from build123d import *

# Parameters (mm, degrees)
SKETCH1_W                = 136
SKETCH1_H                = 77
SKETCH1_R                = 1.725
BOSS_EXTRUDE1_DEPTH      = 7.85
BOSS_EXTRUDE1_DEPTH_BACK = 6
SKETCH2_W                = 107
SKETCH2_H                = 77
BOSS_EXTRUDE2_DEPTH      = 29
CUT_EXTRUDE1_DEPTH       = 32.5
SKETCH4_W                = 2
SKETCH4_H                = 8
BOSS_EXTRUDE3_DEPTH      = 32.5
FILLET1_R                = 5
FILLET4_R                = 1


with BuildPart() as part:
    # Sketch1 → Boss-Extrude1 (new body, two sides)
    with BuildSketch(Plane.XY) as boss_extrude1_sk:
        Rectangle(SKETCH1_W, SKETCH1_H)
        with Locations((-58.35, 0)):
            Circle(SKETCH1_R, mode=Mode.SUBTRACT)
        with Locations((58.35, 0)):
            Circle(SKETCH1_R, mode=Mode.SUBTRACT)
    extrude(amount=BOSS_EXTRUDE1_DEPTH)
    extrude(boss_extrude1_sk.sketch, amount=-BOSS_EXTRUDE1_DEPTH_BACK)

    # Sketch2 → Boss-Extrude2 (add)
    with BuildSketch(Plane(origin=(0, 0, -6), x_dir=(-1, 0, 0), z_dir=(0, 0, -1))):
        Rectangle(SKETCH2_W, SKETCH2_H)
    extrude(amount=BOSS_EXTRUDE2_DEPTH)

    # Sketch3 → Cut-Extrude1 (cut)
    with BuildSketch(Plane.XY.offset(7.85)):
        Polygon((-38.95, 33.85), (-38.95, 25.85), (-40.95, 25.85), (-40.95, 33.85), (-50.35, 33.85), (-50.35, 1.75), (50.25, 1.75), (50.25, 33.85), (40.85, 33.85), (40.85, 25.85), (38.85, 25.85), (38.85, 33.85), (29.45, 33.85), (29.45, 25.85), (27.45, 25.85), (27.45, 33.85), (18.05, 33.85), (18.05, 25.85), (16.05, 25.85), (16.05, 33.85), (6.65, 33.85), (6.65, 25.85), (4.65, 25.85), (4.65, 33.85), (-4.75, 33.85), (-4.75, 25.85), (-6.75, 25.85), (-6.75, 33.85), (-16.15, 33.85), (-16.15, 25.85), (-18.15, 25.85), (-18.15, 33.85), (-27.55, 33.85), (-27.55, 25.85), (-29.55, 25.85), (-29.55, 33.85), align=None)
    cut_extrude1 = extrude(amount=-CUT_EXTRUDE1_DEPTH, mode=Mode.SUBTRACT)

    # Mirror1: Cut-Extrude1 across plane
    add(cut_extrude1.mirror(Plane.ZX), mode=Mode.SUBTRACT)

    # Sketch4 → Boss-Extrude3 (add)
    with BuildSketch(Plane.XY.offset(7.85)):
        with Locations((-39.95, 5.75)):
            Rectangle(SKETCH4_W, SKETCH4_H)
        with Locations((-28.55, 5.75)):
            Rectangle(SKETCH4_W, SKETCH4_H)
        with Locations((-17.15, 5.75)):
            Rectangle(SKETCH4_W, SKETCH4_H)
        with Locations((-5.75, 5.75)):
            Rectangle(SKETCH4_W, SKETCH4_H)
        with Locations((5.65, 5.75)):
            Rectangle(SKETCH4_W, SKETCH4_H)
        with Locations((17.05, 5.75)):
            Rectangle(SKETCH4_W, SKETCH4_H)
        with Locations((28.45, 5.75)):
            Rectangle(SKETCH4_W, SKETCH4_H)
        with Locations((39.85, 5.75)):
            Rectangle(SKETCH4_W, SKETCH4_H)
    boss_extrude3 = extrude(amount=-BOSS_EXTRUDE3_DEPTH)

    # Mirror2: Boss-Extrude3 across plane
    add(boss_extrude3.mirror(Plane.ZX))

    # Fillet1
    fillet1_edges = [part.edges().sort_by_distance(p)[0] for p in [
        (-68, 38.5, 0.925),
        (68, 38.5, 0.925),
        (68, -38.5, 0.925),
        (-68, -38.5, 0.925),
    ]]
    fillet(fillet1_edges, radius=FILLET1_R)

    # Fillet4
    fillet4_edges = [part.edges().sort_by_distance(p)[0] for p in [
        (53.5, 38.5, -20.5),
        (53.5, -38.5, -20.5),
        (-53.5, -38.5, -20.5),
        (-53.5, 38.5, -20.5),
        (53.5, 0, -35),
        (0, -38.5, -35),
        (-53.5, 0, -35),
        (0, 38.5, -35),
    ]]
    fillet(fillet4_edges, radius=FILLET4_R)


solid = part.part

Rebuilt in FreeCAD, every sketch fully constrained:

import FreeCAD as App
import Part
import Sketcher


def edges_at(feature, points):
    """Names of the edges that pass closest to the given points."""
    edges = feature.Shape.Edges
    near = lambda p: min(range(len(edges)), key=lambda i: edges[i].distToShape(Part.Vertex(*p))[0])
    return sorted({f"Edge{near(p) + 1}" for p in points})

doc = App.newDocument("Part")
body = doc.addObject("PartDesign::Body", "Body")

sketch1 = body.newObject("Sketcher::SketchObject", "Sketch")
sketch1.AttachmentSupport = (doc.getObject("XY_Plane"), [""])
sketch1.MapMode = "FlatFace"
sketch1.addGeometry(Part.LineSegment(App.Vector(-68, 38.5, 0), App.Vector(-68, -38.5, 0)), False)
sketch1.addGeometry(Part.LineSegment(App.Vector(-68, -38.5, 0), App.Vector(68, -38.5, 0)), False)
sketch1.addGeometry(Part.LineSegment(App.Vector(68, -38.5, 0), App.Vector(68, 38.5, 0)), False)
sketch1.addGeometry(Part.LineSegment(App.Vector(68, 38.5, 0), App.Vector(-68, 38.5, 0)), False)
sketch1.addGeometry(Part.Circle(App.Vector(-58.4, 0, 0), App.Vector(0, 0, 1), 1.7), False)
sketch1.addGeometry(Part.Circle(App.Vector(58.4, 0, 0), App.Vector(0, 0, 1), 1.7), False)
sketch1.addConstraint(Sketcher.Constraint("Coincident", 0, 2, 1, 1))
sketch1.addConstraint(Sketcher.Constraint("Coincident", 1, 2, 2, 1))
sketch1.addConstraint(Sketcher.Constraint("Coincident", 2, 2, 3, 1))
sketch1.addConstraint(Sketcher.Constraint("Coincident", 3, 2, 0, 1))
sketch1.addConstraint(Sketcher.Constraint("Vertical", 0))
sketch1.addConstraint(Sketcher.Constraint("Horizontal", 1))
sketch1.addConstraint(Sketcher.Constraint("Vertical", 2))
sketch1.addConstraint(Sketcher.Constraint("Horizontal", 3))
sketch1.addConstraint(Sketcher.Constraint("Equal", 4, 5))
sketch1.addConstraint(Sketcher.Constraint("Symmetric", 4, 3, 5, 3, -1, 1))
sketch1.addConstraint(Sketcher.Constraint("Symmetric", 0, 2, 2, 2, -1, 1))
sketch1.addConstraint(Sketcher.Constraint("PointOnObject", 4, 3, -1))
sketch1.addConstraint(Sketcher.Constraint("Diameter", 4, 3.45))
sketch1.addConstraint(Sketcher.Constraint("DistanceX", 1, 1, 1, 2, 136.0))
sketch1.addConstraint(Sketcher.Constraint("DistanceY", 0, 2, 0, 1, 77.0))
sketch1.addConstraint(Sketcher.Constraint("DistanceX", 4, 3, 5, 3, 116.7))
pad1 = body.newObject("PartDesign::Pad", "Pad")
pad1.Profile = sketch1
pad1.Type = "TwoLengths"
pad1.Length = 7.85
pad1.Length2 = 6

sketch2 = body.newObject("Sketcher::SketchObject", "Sketch001")
sketch2.AttachmentSupport = (doc.getObject("XY_Plane"), [""])
sketch2.MapMode = "FlatFace"
sketch2.AttachmentOffset = App.Placement(App.Vector(0, 0, -6), App.Rotation())
sketch2.addGeometry(Part.LineSegment(App.Vector(54, 38, 0), App.Vector(54, -38, 0)), False)
sketch2.addGeometry(Part.LineSegment(App.Vector(54, -38, 0), App.Vector(-54, -38, 0)), False)
sketch2.addGeometry(Part.LineSegment(App.Vector(-54, -38, 0), App.Vector(-54, 38, 0)), False)
sketch2.addGeometry(Part.LineSegment(App.Vector(-54, 38, 0), App.Vector(54, 38, 0)), False)
sketch2.addConstraint(Sketcher.Constraint("Coincident", 0, 2, 1, 1))
sketch2.addConstraint(Sketcher.Constraint("Coincident", 1, 2, 2, 1))
sketch2.addConstraint(Sketcher.Constraint("Coincident", 2, 2, 3, 1))
sketch2.addConstraint(Sketcher.Constraint("Coincident", 3, 2, 0, 1))
sketch2.addConstraint(Sketcher.Constraint("Vertical", 0))
sketch2.addConstraint(Sketcher.Constraint("Horizontal", 1))
sketch2.addConstraint(Sketcher.Constraint("Vertical", 2))
sketch2.addConstraint(Sketcher.Constraint("Horizontal", 3))
sketch2.addConstraint(Sketcher.Constraint("Symmetric", 0, 2, 2, 2, -1, 1))
sketch2.addConstraint(Sketcher.Constraint("DistanceX", 1, 2, 1, 1, 107.0))
sketch2.addConstraint(Sketcher.Constraint("DistanceY", 0, 2, 0, 1, 77.0))
pad2 = body.newObject("PartDesign::Pad", "Pad001")
pad2.Profile = sketch2
pad2.Length = 29
pad2.Reversed = True

sketch3 = body.newObject("Sketcher::SketchObject", "Sketch002")
sketch3.AttachmentSupport = (doc.getObject("XY_Plane"), [""])
sketch3.MapMode = "FlatFace"
sketch3.AttachmentOffset = App.Placement(App.Vector(0, 0, 7.85), App.Rotation())
sketch3.addGeometry(Part.LineSegment(App.Vector(-39, 33.9, 0), App.Vector(-39, 25.9, 0)), False)
sketch3.addGeometry(Part.LineSegment(App.Vector(-39, 25.9, 0), App.Vector(-41, 25.9, 0)), False)
sketch3.addGeometry(Part.LineSegment(App.Vector(-41, 25.9, 0), App.Vector(-41, 33.9, 0)), False)
sketch3.addGeometry(Part.LineSegment(App.Vector(-41, 33.9, 0), App.Vector(-50.4, 33.9, 0)), False)
sketch3.addGeometry(Part.LineSegment(App.Vector(-50.4, 33.9, 0), App.Vector(-50.4, 1.8, 0)), False)
sketch3.addGeometry(Part.LineSegment(App.Vector(-50.4, 1.8, 0), App.Vector(50.2, 1.8, 0)), False)
sketch3.addGeometry(Part.LineSegment(App.Vector(50.2, 1.8, 0), App.Vector(50.2, 33.9, 0)), False)
sketch3.addGeometry(Part.LineSegment(App.Vector(50.2, 33.9, 0), App.Vector(40.9, 33.9, 0)), False)
sketch3.addGeometry(Part.LineSegment(App.Vector(40.9, 33.9, 0), App.Vector(40.9, 25.9, 0)), False)
sketch3.addGeometry(Part.LineSegment(App.Vector(40.9, 25.9, 0), App.Vector(38.9, 25.9, 0)), False)
sketch3.addGeometry(Part.LineSegment(App.Vector(38.9, 25.9, 0), App.Vector(38.9, 33.9, 0)), False)
sketch3.addGeometry(Part.LineSegment(App.Vector(38.9, 33.9, 0), App.Vector(29.4, 33.9, 0)), False)
sketch3.addGeometry(Part.LineSegment(App.Vector(29.4, 33.9, 0), App.Vector(29.4, 25.9, 0)), False)
sketch3.addGeometry(Part.LineSegment(App.Vector(29.4, 25.9, 0), App.Vector(27.4, 25.9, 0)), False)
sketch3.addGeometry(Part.LineSegment(App.Vector(27.4, 25.9, 0), App.Vector(27.4, 33.9, 0)), False)
sketch3.addGeometry(Part.LineSegment(App.Vector(27.4, 33.9, 0), App.Vector(18.1, 33.9, 0)), False)
sketch3.addGeometry(Part.LineSegment(App.Vector(18.1, 33.9, 0), App.Vector(18.1, 25.9, 0)), False)
sketch3.addGeometry(Part.LineSegment(App.Vector(18.1, 25.9, 0), App.Vector(16.1, 25.9, 0)), False)
sketch3.addGeometry(Part.LineSegment(App.Vector(16.1, 25.9, 0), App.Vector(16.1, 33.9, 0)), False)
sketch3.addGeometry(Part.LineSegment(App.Vector(16.1, 33.9, 0), App.Vector(6.7, 33.9, 0)), False)
sketch3.addGeometry(Part.LineSegment(App.Vector(6.7, 33.9, 0), App.Vector(6.7, 25.9, 0)), False)
sketch3.addGeometry(Part.LineSegment(App.Vector(6.7, 25.9, 0), App.Vector(4.7, 25.9, 0)), False)
sketch3.addGeometry(Part.LineSegment(App.Vector(4.7, 25.9, 0), App.Vector(4.7, 33.9, 0)), False)
sketch3.addGeometry(Part.LineSegment(App.Vector(4.7, 33.9, 0), App.Vector(-4.8, 33.9, 0)), False)
sketch3.addGeometry(Part.LineSegment(App.Vector(-4.8, 33.9, 0), App.Vector(-4.8, 25.9, 0)), False)
sketch3.addGeometry(Part.LineSegment(App.Vector(-4.8, 25.9, 0), App.Vector(-6.8, 25.9, 0)), False)
sketch3.addGeometry(Part.LineSegment(App.Vector(-6.8, 25.9, 0), App.Vector(-6.8, 33.9, 0)), False)
sketch3.addGeometry(Part.LineSegment(App.Vector(-6.8, 33.9, 0), App.Vector(-16.1, 33.9, 0)), False)
sketch3.addGeometry(Part.LineSegment(App.Vector(-16.1, 33.9, 0), App.Vector(-16.1, 25.9, 0)), False)
sketch3.addGeometry(Part.LineSegment(App.Vector(-16.1, 25.9, 0), App.Vector(-18.1, 25.9, 0)), False)
sketch3.addGeometry(Part.LineSegment(App.Vector(-18.1, 25.9, 0), App.Vector(-18.1, 33.9, 0)), False)
sketch3.addGeometry(Part.LineSegment(App.Vector(-18.1, 33.9, 0), App.Vector(-27.6, 33.9, 0)), False)
sketch3.addGeometry(Part.LineSegment(App.Vector(-27.6, 33.9, 0), App.Vector(-27.6, 25.9, 0)), False)
sketch3.addGeometry(Part.LineSegment(App.Vector(-27.6, 25.9, 0), App.Vector(-29.6, 25.9, 0)), False)
sketch3.addGeometry(Part.LineSegment(App.Vector(-29.6, 25.9, 0), App.Vector(-29.6, 33.9, 0)), False)
sketch3.addGeometry(Part.LineSegment(App.Vector(-29.6, 33.9, 0), App.Vector(-39, 33.9, 0)), False)
sketch3.addConstraint(Sketcher.Constraint("Coincident", 0, 2, 1, 1))
sketch3.addConstraint(Sketcher.Constraint("Coincident", 1, 2, 2, 1))
sketch3.addConstraint(Sketcher.Constraint("Coincident", 2, 2, 3, 1))
sketch3.addConstraint(Sketcher.Constraint("Coincident", 3, 2, 4, 1))
sketch3.addConstraint(Sketcher.Constraint("Coincident", 4, 2, 5, 1))
sketch3.addConstraint(Sketcher.Constraint("Coincident", 5, 2, 6, 1))
sketch3.addConstraint(Sketcher.Constraint("Coincident", 6, 2, 7, 1))
sketch3.addConstraint(Sketcher.Constraint("Coincident", 7, 2, 8, 1))
sketch3.addConstraint(Sketcher.Constraint("Coincident", 8, 2, 9, 1))
sketch3.addConstraint(Sketcher.Constraint("Coincident", 9, 2, 10, 1))
sketch3.addConstraint(Sketcher.Constraint("Coincident", 10, 2, 11, 1))
sketch3.addConstraint(Sketcher.Constraint("Coincident", 11, 2, 12, 1))
sketch3.addConstraint(Sketcher.Constraint("Coincident", 12, 2, 13, 1))
sketch3.addConstraint(Sketcher.Constraint("Coincident", 13, 2, 14, 1))
sketch3.addConstraint(Sketcher.Constraint("Coincident", 14, 2, 15, 1))
sketch3.addConstraint(Sketcher.Constraint("Coincident", 15, 2, 16, 1))
sketch3.addConstraint(Sketcher.Constraint("Coincident", 16, 2, 17, 1))
sketch3.addConstraint(Sketcher.Constraint("Coincident", 17, 2, 18, 1))
sketch3.addConstraint(Sketcher.Constraint("Coincident", 18, 2, 19, 1))
sketch3.addConstraint(Sketcher.Constraint("Coincident", 19, 2, 20, 1))
sketch3.addConstraint(Sketcher.Constraint("Coincident", 20, 2, 21, 1))
sketch3.addConstraint(Sketcher.Constraint("Coincident", 21, 2, 22, 1))
sketch3.addConstraint(Sketcher.Constraint("Coincident", 22, 2, 23, 1))
sketch3.addConstraint(Sketcher.Constraint("Coincident", 23, 2, 24, 1))
sketch3.addConstraint(Sketcher.Constraint("Coincident", 24, 2, 25, 1))
sketch3.addConstraint(Sketcher.Constraint("Coincident", 25, 2, 26, 1))
sketch3.addConstraint(Sketcher.Constraint("Coincident", 26, 2, 27, 1))
sketch3.addConstraint(Sketcher.Constraint("Coincident", 27, 2, 28, 1))
sketch3.addConstraint(Sketcher.Constraint("Coincident", 28, 2, 29, 1))
sketch3.addConstraint(Sketcher.Constraint("Coincident", 29, 2, 30, 1))
sketch3.addConstraint(Sketcher.Constraint("Coincident", 30, 2, 31, 1))
sketch3.addConstraint(Sketcher.Constraint("Coincident", 31, 2, 32, 1))
sketch3.addConstraint(Sketcher.Constraint("Coincident", 32, 2, 33, 1))
sketch3.addConstraint(Sketcher.Constraint("Coincident", 33, 2, 34, 1))
sketch3.addConstraint(Sketcher.Constraint("Coincident", 34, 2, 35, 1))
sketch3.addConstraint(Sketcher.Constraint("Coincident", 35, 2, 0, 1))
sketch3.addConstraint(Sketcher.Constraint("Vertical", 0))
sketch3.addConstraint(Sketcher.Constraint("Horizontal", 1))
sketch3.addConstraint(Sketcher.Constraint("Vertical", 2))
sketch3.addConstraint(Sketcher.Constraint("Horizontal", 3))
sketch3.addConstraint(Sketcher.Constraint("Vertical", 4))
sketch3.addConstraint(Sketcher.Constraint("Horizontal", 5))
sketch3.addConstraint(Sketcher.Constraint("Vertical", 6))
sketch3.addConstraint(Sketcher.Constraint("Horizontal", 7))
sketch3.addConstraint(Sketcher.Constraint("Vertical", 8))
sketch3.addConstraint(Sketcher.Constraint("Horizontal", 9))
sketch3.addConstraint(Sketcher.Constraint("Vertical", 10))
sketch3.addConstraint(Sketcher.Constraint("Horizontal", 11))
sketch3.addConstraint(Sketcher.Constraint("Vertical", 12))
sketch3.addConstraint(Sketcher.Constraint("Horizontal", 13))
sketch3.addConstraint(Sketcher.Constraint("Vertical", 14))
sketch3.addConstraint(Sketcher.Constraint("Horizontal", 15))
sketch3.addConstraint(Sketcher.Constraint("Vertical", 16))
sketch3.addConstraint(Sketcher.Constraint("Horizontal", 17))
sketch3.addConstraint(Sketcher.Constraint("Vertical", 18))
sketch3.addConstraint(Sketcher.Constraint("Horizontal", 19))
sketch3.addConstraint(Sketcher.Constraint("Vertical", 20))
sketch3.addConstraint(Sketcher.Constraint("Horizontal", 21))
sketch3.addConstraint(Sketcher.Constraint("Vertical", 22))
sketch3.addConstraint(Sketcher.Constraint("Horizontal", 23))
sketch3.addConstraint(Sketcher.Constraint("Vertical", 24))
sketch3.addConstraint(Sketcher.Constraint("Horizontal", 25))
sketch3.addConstraint(Sketcher.Constraint("Vertical", 26))
sketch3.addConstraint(Sketcher.Constraint("Horizontal", 27))
sketch3.addConstraint(Sketcher.Constraint("Vertical", 28))
sketch3.addConstraint(Sketcher.Constraint("Horizontal", 29))
sketch3.addConstraint(Sketcher.Constraint("Vertical", 30))
sketch3.addConstraint(Sketcher.Constraint("Horizontal", 31))
sketch3.addConstraint(Sketcher.Constraint("Vertical", 32))
sketch3.addConstraint(Sketcher.Constraint("Horizontal", 33))
sketch3.addConstraint(Sketcher.Constraint("Vertical", 34))
sketch3.addConstraint(Sketcher.Constraint("Horizontal", 35))
sketch3.addConstraint(Sketcher.Constraint("Horizontal", 3, 2, 6, 2))
sketch3.addConstraint(Sketcher.Constraint("Horizontal", 1, 2, 8, 2))
sketch3.addConstraint(Sketcher.Constraint("Horizontal", 7, 2, 10, 2))
sketch3.addConstraint(Sketcher.Constraint("Horizontal", 9, 2, 12, 2))
sketch3.addConstraint(Sketcher.Constraint("Horizontal", 11, 2, 14, 2))
sketch3.addConstraint(Sketcher.Constraint("Horizontal", 13, 2, 16, 2))
sketch3.addConstraint(Sketcher.Constraint("Horizontal", 15, 2, 18, 2))
sketch3.addConstraint(Sketcher.Constraint("Horizontal", 17, 2, 20, 2))
sketch3.addConstraint(Sketcher.Constraint("Horizontal", 19, 2, 22, 2))
sketch3.addConstraint(Sketcher.Constraint("Horizontal", 21, 2, 24, 2))
sketch3.addConstraint(Sketcher.Constraint("Horizontal", 23, 2, 26, 2))
sketch3.addConstraint(Sketcher.Constraint("Horizontal", 25, 2, 28, 2))
sketch3.addConstraint(Sketcher.Constraint("Horizontal", 27, 2, 30, 2))
sketch3.addConstraint(Sketcher.Constraint("Horizontal", 29, 2, 32, 2))
sketch3.addConstraint(Sketcher.Constraint("Horizontal", 31, 2, 34, 2))
sketch3.addConstraint(Sketcher.Constraint("Equal", 3, 7))
sketch3.addConstraint(Sketcher.Constraint("Equal", 1, 9))
sketch3.addConstraint(Sketcher.Constraint("Equal", 7, 11))
sketch3.addConstraint(Sketcher.Constraint("Equal", 9, 13))
sketch3.addConstraint(Sketcher.Constraint("Equal", 11, 15))
sketch3.addConstraint(Sketcher.Constraint("Equal", 13, 17))
sketch3.addConstraint(Sketcher.Constraint("Equal", 15, 19))
sketch3.addConstraint(Sketcher.Constraint("Equal", 17, 21))
sketch3.addConstraint(Sketcher.Constraint("Equal", 19, 23))
sketch3.addConstraint(Sketcher.Constraint("Equal", 21, 25))
sketch3.addConstraint(Sketcher.Constraint("Equal", 23, 27))
sketch3.addConstraint(Sketcher.Constraint("Equal", 25, 29))
sketch3.addConstraint(Sketcher.Constraint("Equal", 27, 31))
sketch3.addConstraint(Sketcher.Constraint("Equal", 29, 33))
sketch3.addConstraint(Sketcher.Constraint("Equal", 31, 35))
sketch3.addConstraint(Sketcher.Constraint("DistanceX", 1, 2, 1, 1, 2.0))
sketch3.addConstraint(Sketcher.Constraint("DistanceY", 0, 2, 0, 1, 8.0))
sketch3.addConstraint(Sketcher.Constraint("DistanceX", 3, 2, 3, 1, 9.4))
sketch3.addConstraint(Sketcher.Constraint("DistanceY", 4, 2, 4, 1, 32.1))
sketch3.addConstraint(Sketcher.Constraint("DistanceX", 0, 2, -1, 1, 38.95))
sketch3.addConstraint(Sketcher.Constraint("DistanceY", -1, 1, 0, 2, 25.85))
pocket1 = body.newObject("PartDesign::Pocket", "Pocket")
pocket1.Profile = sketch3
pocket1.Length = 32.5
doc.recompute()

mirrored = body.newObject("PartDesign::Mirrored", "Mirrored")
mirrored.Originals = [pocket1]
mirrored.MirrorPlane = (doc.getObject("XZ_Plane"), [""])
body.Tip = mirrored

sketch4 = body.newObject("Sketcher::SketchObject", "Sketch003")
sketch4.AttachmentSupport = (doc.getObject("XY_Plane"), [""])
sketch4.MapMode = "FlatFace"
sketch4.AttachmentOffset = App.Placement(App.Vector(0, 0, 7.85), App.Rotation())
sketch4.addGeometry(Part.LineSegment(App.Vector(-41, 9.8, 0), App.Vector(-41, 1.8, 0)), False)
sketch4.addGeometry(Part.LineSegment(App.Vector(-41, 1.8, 0), App.Vector(-39, 1.8, 0)), False)
sketch4.addGeometry(Part.LineSegment(App.Vector(-39, 1.8, 0), App.Vector(-39, 9.8, 0)), False)
sketch4.addGeometry(Part.LineSegment(App.Vector(-39, 9.8, 0), App.Vector(-41, 9.8, 0)), False)
sketch4.addGeometry(Part.LineSegment(App.Vector(-29.6, 9.8, 0), App.Vector(-29.6, 1.8, 0)), False)
sketch4.addGeometry(Part.LineSegment(App.Vector(-29.6, 1.8, 0), App.Vector(-27.6, 1.8, 0)), False)
sketch4.addGeometry(Part.LineSegment(App.Vector(-27.6, 1.8, 0), App.Vector(-27.6, 9.8, 0)), False)
sketch4.addGeometry(Part.LineSegment(App.Vector(-27.6, 9.8, 0), App.Vector(-29.6, 9.8, 0)), False)
sketch4.addGeometry(Part.LineSegment(App.Vector(-18.1, 9.8, 0), App.Vector(-18.1, 1.8, 0)), False)
sketch4.addGeometry(Part.LineSegment(App.Vector(-18.1, 1.8, 0), App.Vector(-16.1, 1.8, 0)), False)
sketch4.addGeometry(Part.LineSegment(App.Vector(-16.1, 1.8, 0), App.Vector(-16.1, 9.8, 0)), False)
sketch4.addGeometry(Part.LineSegment(App.Vector(-16.1, 9.8, 0), App.Vector(-18.1, 9.8, 0)), False)
sketch4.addGeometry(Part.LineSegment(App.Vector(-6.8, 9.8, 0), App.Vector(-6.8, 1.8, 0)), False)
sketch4.addGeometry(Part.LineSegment(App.Vector(-6.8, 1.8, 0), App.Vector(-4.8, 1.8, 0)), False)
sketch4.addGeometry(Part.LineSegment(App.Vector(-4.8, 1.8, 0), App.Vector(-4.8, 9.8, 0)), False)
sketch4.addGeometry(Part.LineSegment(App.Vector(-4.8, 9.8, 0), App.Vector(-6.8, 9.8, 0)), False)
sketch4.addGeometry(Part.LineSegment(App.Vector(4.7, 9.8, 0), App.Vector(4.7, 1.8, 0)), False)
sketch4.addGeometry(Part.LineSegment(App.Vector(4.7, 1.8, 0), App.Vector(6.7, 1.8, 0)), False)
sketch4.addGeometry(Part.LineSegment(App.Vector(6.7, 1.8, 0), App.Vector(6.7, 9.8, 0)), False)
sketch4.addGeometry(Part.LineSegment(App.Vector(6.7, 9.8, 0), App.Vector(4.7, 9.8, 0)), False)
sketch4.addGeometry(Part.LineSegment(App.Vector(16.1, 9.8, 0), App.Vector(16.1, 1.8, 0)), False)
sketch4.addGeometry(Part.LineSegment(App.Vector(16.1, 1.8, 0), App.Vector(18.1, 1.8, 0)), False)
sketch4.addGeometry(Part.LineSegment(App.Vector(18.1, 1.8, 0), App.Vector(18.1, 9.8, 0)), False)
sketch4.addGeometry(Part.LineSegment(App.Vector(18.1, 9.8, 0), App.Vector(16.1, 9.8, 0)), False)
sketch4.addGeometry(Part.LineSegment(App.Vector(27.4, 9.8, 0), App.Vector(27.4, 1.8, 0)), False)
sketch4.addGeometry(Part.LineSegment(App.Vector(27.4, 1.8, 0), App.Vector(29.4, 1.8, 0)), False)
sketch4.addGeometry(Part.LineSegment(App.Vector(29.4, 1.8, 0), App.Vector(29.4, 9.8, 0)), False)
sketch4.addGeometry(Part.LineSegment(App.Vector(29.4, 9.8, 0), App.Vector(27.4, 9.8, 0)), False)
sketch4.addGeometry(Part.LineSegment(App.Vector(38.9, 9.8, 0), App.Vector(38.9, 1.8, 0)), False)
sketch4.addGeometry(Part.LineSegment(App.Vector(38.9, 1.8, 0), App.Vector(40.9, 1.8, 0)), False)
sketch4.addGeometry(Part.LineSegment(App.Vector(40.9, 1.8, 0), App.Vector(40.9, 9.8, 0)), False)
sketch4.addGeometry(Part.LineSegment(App.Vector(40.9, 9.8, 0), App.Vector(38.9, 9.8, 0)), False)
sketch4.addConstraint(Sketcher.Constraint("Coincident", 0, 2, 1, 1))
sketch4.addConstraint(Sketcher.Constraint("Coincident", 1, 2, 2, 1))
sketch4.addConstraint(Sketcher.Constraint("Coincident", 2, 2, 3, 1))
sketch4.addConstraint(Sketcher.Constraint("Coincident", 3, 2, 0, 1))
sketch4.addConstraint(Sketcher.Constraint("Coincident", 4, 2, 5, 1))
sketch4.addConstraint(Sketcher.Constraint("Coincident", 5, 2, 6, 1))
sketch4.addConstraint(Sketcher.Constraint("Coincident", 6, 2, 7, 1))
sketch4.addConstraint(Sketcher.Constraint("Coincident", 7, 2, 4, 1))
sketch4.addConstraint(Sketcher.Constraint("Coincident", 8, 2, 9, 1))
sketch4.addConstraint(Sketcher.Constraint("Coincident", 9, 2, 10, 1))
sketch4.addConstraint(Sketcher.Constraint("Coincident", 10, 2, 11, 1))
sketch4.addConstraint(Sketcher.Constraint("Coincident", 11, 2, 8, 1))
sketch4.addConstraint(Sketcher.Constraint("Coincident", 12, 2, 13, 1))
sketch4.addConstraint(Sketcher.Constraint("Coincident", 13, 2, 14, 1))
sketch4.addConstraint(Sketcher.Constraint("Coincident", 14, 2, 15, 1))
sketch4.addConstraint(Sketcher.Constraint("Coincident", 15, 2, 12, 1))
sketch4.addConstraint(Sketcher.Constraint("Coincident", 16, 2, 17, 1))
sketch4.addConstraint(Sketcher.Constraint("Coincident", 17, 2, 18, 1))
sketch4.addConstraint(Sketcher.Constraint("Coincident", 18, 2, 19, 1))
sketch4.addConstraint(Sketcher.Constraint("Coincident", 19, 2, 16, 1))
sketch4.addConstraint(Sketcher.Constraint("Coincident", 20, 2, 21, 1))
sketch4.addConstraint(Sketcher.Constraint("Coincident", 21, 2, 22, 1))
sketch4.addConstraint(Sketcher.Constraint("Coincident", 22, 2, 23, 1))
sketch4.addConstraint(Sketcher.Constraint("Coincident", 23, 2, 20, 1))
sketch4.addConstraint(Sketcher.Constraint("Coincident", 24, 2, 25, 1))
sketch4.addConstraint(Sketcher.Constraint("Coincident", 25, 2, 26, 1))
sketch4.addConstraint(Sketcher.Constraint("Coincident", 26, 2, 27, 1))
sketch4.addConstraint(Sketcher.Constraint("Coincident", 27, 2, 24, 1))
sketch4.addConstraint(Sketcher.Constraint("Coincident", 28, 2, 29, 1))
sketch4.addConstraint(Sketcher.Constraint("Coincident", 29, 2, 30, 1))
sketch4.addConstraint(Sketcher.Constraint("Coincident", 30, 2, 31, 1))
sketch4.addConstraint(Sketcher.Constraint("Coincident", 31, 2, 28, 1))
sketch4.addConstraint(Sketcher.Constraint("Vertical", 0))
sketch4.addConstraint(Sketcher.Constraint("Horizontal", 1))
sketch4.addConstraint(Sketcher.Constraint("Vertical", 2))
sketch4.addConstraint(Sketcher.Constraint("Horizontal", 3))
sketch4.addConstraint(Sketcher.Constraint("Vertical", 4))
sketch4.addConstraint(Sketcher.Constraint("Horizontal", 5))
sketch4.addConstraint(Sketcher.Constraint("Vertical", 6))
sketch4.addConstraint(Sketcher.Constraint("Horizontal", 7))
sketch4.addConstraint(Sketcher.Constraint("Vertical", 8))
sketch4.addConstraint(Sketcher.Constraint("Horizontal", 9))
sketch4.addConstraint(Sketcher.Constraint("Vertical", 10))
sketch4.addConstraint(Sketcher.Constraint("Horizontal", 11))
sketch4.addConstraint(Sketcher.Constraint("Vertical", 12))
sketch4.addConstraint(Sketcher.Constraint("Horizontal", 13))
sketch4.addConstraint(Sketcher.Constraint("Vertical", 14))
sketch4.addConstraint(Sketcher.Constraint("Horizontal", 15))
sketch4.addConstraint(Sketcher.Constraint("Vertical", 16))
sketch4.addConstraint(Sketcher.Constraint("Horizontal", 17))
sketch4.addConstraint(Sketcher.Constraint("Vertical", 18))
sketch4.addConstraint(Sketcher.Constraint("Horizontal", 19))
sketch4.addConstraint(Sketcher.Constraint("Vertical", 20))
sketch4.addConstraint(Sketcher.Constraint("Horizontal", 21))
sketch4.addConstraint(Sketcher.Constraint("Vertical", 22))
sketch4.addConstraint(Sketcher.Constraint("Horizontal", 23))
sketch4.addConstraint(Sketcher.Constraint("Vertical", 24))
sketch4.addConstraint(Sketcher.Constraint("Horizontal", 25))
sketch4.addConstraint(Sketcher.Constraint("Vertical", 26))
sketch4.addConstraint(Sketcher.Constraint("Horizontal", 27))
sketch4.addConstraint(Sketcher.Constraint("Vertical", 28))
sketch4.addConstraint(Sketcher.Constraint("Horizontal", 29))
sketch4.addConstraint(Sketcher.Constraint("Vertical", 30))
sketch4.addConstraint(Sketcher.Constraint("Horizontal", 31))
sketch4.addConstraint(Sketcher.Constraint("Horizontal", 1, 2, 4, 2))
sketch4.addConstraint(Sketcher.Constraint("Horizontal", 3, 2, 6, 2))
sketch4.addConstraint(Sketcher.Constraint("Horizontal", 5, 2, 8, 2))
sketch4.addConstraint(Sketcher.Constraint("Horizontal", 7, 2, 10, 2))
sketch4.addConstraint(Sketcher.Constraint("Horizontal", 9, 2, 12, 2))
sketch4.addConstraint(Sketcher.Constraint("Horizontal", 11, 2, 14, 2))
sketch4.addConstraint(Sketcher.Constraint("Horizontal", 13, 2, 16, 2))
sketch4.addConstraint(Sketcher.Constraint("Horizontal", 15, 2, 18, 2))
sketch4.addConstraint(Sketcher.Constraint("Horizontal", 17, 2, 20, 2))
sketch4.addConstraint(Sketcher.Constraint("Horizontal", 19, 2, 22, 2))
sketch4.addConstraint(Sketcher.Constraint("Horizontal", 21, 2, 24, 2))
sketch4.addConstraint(Sketcher.Constraint("Horizontal", 23, 2, 26, 2))
sketch4.addConstraint(Sketcher.Constraint("Horizontal", 25, 2, 28, 2))
sketch4.addConstraint(Sketcher.Constraint("Horizontal", 27, 2, 30, 2))
sketch4.addConstraint(Sketcher.Constraint("Equal", 3, 5))
sketch4.addConstraint(Sketcher.Constraint("Equal", 7, 9))
sketch4.addConstraint(Sketcher.Constraint("Equal", 11, 13))
sketch4.addConstraint(Sketcher.Constraint("Equal", 15, 17))
sketch4.addConstraint(Sketcher.Constraint("Equal", 19, 21))
sketch4.addConstraint(Sketcher.Constraint("Equal", 23, 25))
sketch4.addConstraint(Sketcher.Constraint("Equal", 27, 29))
sketch4.addConstraint(Sketcher.Constraint("DistanceX", 1, 1, 1, 2, 2.0))
sketch4.addConstraint(Sketcher.Constraint("DistanceY", 0, 2, 0, 1, 8.0))
sketch4.addConstraint(Sketcher.Constraint("DistanceX", 1, 2, 4, 2, 9.4))
sketch4.addConstraint(Sketcher.Constraint("DistanceX", 5, 2, 8, 2, 9.4))
sketch4.addConstraint(Sketcher.Constraint("DistanceX", 9, 2, 12, 2, 9.4))
sketch4.addConstraint(Sketcher.Constraint("DistanceX", 13, 2, 16, 2, 9.4))
sketch4.addConstraint(Sketcher.Constraint("DistanceX", 17, 2, 20, 2, 9.4))
sketch4.addConstraint(Sketcher.Constraint("DistanceX", 21, 2, 24, 2, 9.4))
sketch4.addConstraint(Sketcher.Constraint("DistanceX", 25, 2, 28, 2, 9.4))
sketch4.addConstraint(Sketcher.Constraint("DistanceX", 0, 2, -1, 1, 40.95))
sketch4.addConstraint(Sketcher.Constraint("DistanceY", -1, 1, 0, 2, 1.75))
pad3 = body.newObject("PartDesign::Pad", "Pad002")
pad3.Profile = sketch4
pad3.Length = 32.5
pad3.Reversed = True
doc.recompute()

mirrored2 = body.newObject("PartDesign::Mirrored", "Mirrored001")
mirrored2.Originals = [pad3]
mirrored2.MirrorPlane = (doc.getObject("XZ_Plane"), [""])
body.Tip = mirrored2
doc.recompute()

fillet = body.newObject("PartDesign::Fillet", "Fillet")
fillet.Base = (mirrored2, edges_at(mirrored2, [
    (-68, 38.5, 0.925),
    (68, 38.5, 0.925),
    (68, -38.5, 0.925),
    (-68, -38.5, 0.925),
]))
fillet.Radius = 5
doc.recompute()

fillet2 = body.newObject("PartDesign::Fillet", "Fillet001")
fillet2.Base = (fillet, edges_at(fillet, [
    (53.5, 38.5, -20.5),
    (53.5, -38.5, -20.5),
    (-53.5, -38.5, -20.5),
    (-53.5, 38.5, -20.5),
    (53.5, 0, -35),
    (0, -38.5, -35),
    (-53.5, 0, -35),
    (0, 38.5, -35),
]))
fillet2.Radius = 1

doc.recompute()
